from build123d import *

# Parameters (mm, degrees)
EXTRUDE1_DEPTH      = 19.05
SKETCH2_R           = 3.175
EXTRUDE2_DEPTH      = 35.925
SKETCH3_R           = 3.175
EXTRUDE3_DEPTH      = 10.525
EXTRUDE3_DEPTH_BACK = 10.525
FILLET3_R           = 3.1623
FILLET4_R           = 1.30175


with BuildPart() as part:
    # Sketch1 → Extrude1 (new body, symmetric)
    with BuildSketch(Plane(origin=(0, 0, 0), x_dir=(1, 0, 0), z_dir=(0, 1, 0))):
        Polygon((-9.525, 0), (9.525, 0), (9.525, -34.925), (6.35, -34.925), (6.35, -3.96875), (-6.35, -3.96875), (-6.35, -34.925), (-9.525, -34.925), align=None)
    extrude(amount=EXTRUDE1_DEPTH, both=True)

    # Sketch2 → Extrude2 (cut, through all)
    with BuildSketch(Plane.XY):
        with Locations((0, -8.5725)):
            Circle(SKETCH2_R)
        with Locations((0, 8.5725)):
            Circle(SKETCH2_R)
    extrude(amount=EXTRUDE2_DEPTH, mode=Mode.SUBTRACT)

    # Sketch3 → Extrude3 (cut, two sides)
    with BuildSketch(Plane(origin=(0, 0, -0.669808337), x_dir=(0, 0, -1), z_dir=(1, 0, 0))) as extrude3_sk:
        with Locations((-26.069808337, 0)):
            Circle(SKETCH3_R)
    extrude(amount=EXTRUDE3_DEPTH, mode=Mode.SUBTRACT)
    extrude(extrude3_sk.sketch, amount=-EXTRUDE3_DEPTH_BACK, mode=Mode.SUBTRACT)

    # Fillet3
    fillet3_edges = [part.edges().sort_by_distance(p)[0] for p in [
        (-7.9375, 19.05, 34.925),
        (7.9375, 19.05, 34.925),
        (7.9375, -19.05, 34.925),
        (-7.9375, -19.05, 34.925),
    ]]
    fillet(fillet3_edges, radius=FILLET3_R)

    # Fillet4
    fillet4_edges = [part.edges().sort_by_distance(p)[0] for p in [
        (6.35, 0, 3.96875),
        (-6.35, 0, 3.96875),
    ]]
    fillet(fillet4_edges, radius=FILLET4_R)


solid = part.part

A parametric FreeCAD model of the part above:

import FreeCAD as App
import Part
import Sketcher
Q = App.Units.Quantity


def edges_at(feature, points):
    """Names of the edges that pass closest to the given points."""
    edges = feature.Shape.Edges
    near = lambda p: min(range(len(edges)), key=lambda i: edges[i].distToShape(Part.Vertex(*p))[0])
    return sorted({f"Edge{near(p) + 1}" for p in points})


def add_polygon(sketch, points):
    """Adds a closed chain of lines whose ends are joined by coincident constraints."""
    first, n = sketch.GeometryCount, len(points)
    for a, b in zip(points, points[1:] + points[:1]):
        sketch.addGeometry(Part.LineSegment(App.Vector(*a, 0), App.Vector(*b, 0)), False)
    for i in range(n):
        sketch.addConstraint(Sketcher.Constraint("Coincident", first + i, 2, first + (i + 1) % n, 1))

doc = App.newDocument("Part")
body = doc.addObject("PartDesign::Body", "Body")

# Sketch on XZ plane
sketch1 = body.newObject("Sketcher::SketchObject", "Sketch")
sketch1.AttachmentSupport = (doc.getObject("XZ_Plane"), [""])
sketch1.MapMode = "FlatFace"
add_polygon(sketch1, [(9.5, 0), (-9.5, 0), (-9.5, 34.9), (-6.3, 34.9), (-6.3, 4), (6.3, 4), (6.3, 34.9), (9.5, 34.9)])  # lines 0-7
sketch1.addConstraint(Sketcher.Constraint("Horizontal", 0))
sketch1.addConstraint(Sketcher.Constraint("Vertical", 1))
sketch1.addConstraint(Sketcher.Constraint("Horizontal", 2))
sketch1.addConstraint(Sketcher.Constraint("Vertical", 3))
sketch1.addConstraint(Sketcher.Constraint("Horizontal", 4))
sketch1.addConstraint(Sketcher.Constraint("Vertical", 5))
sketch1.addConstraint(Sketcher.Constraint("Horizontal", 6))
sketch1.addConstraint(Sketcher.Constraint("Vertical", 7))
sketch1.addConstraint(Sketcher.Constraint("Symmetric", 0, 2, 7, 2, -1, 1))
sketch1.addConstraint(Sketcher.Constraint("Symmetric", 2, 2, 5, 2, -2))
sketch1.addConstraint(Sketcher.Constraint("DistanceX", 4, 1, 4, 2, Q("0.5 in")))
sketch1.addConstraint(Sketcher.Constraint("DistanceX", 0, 2, 0, 1, Q("0.75 in")))
sketch1.addConstraint(Sketcher.Constraint("DistanceY", 1, 1, 1, 2, Q("1.375 in")))
sketch1.addConstraint(Sketcher.Constraint("DistanceY", 3, 2, 3, 1, Q("1.21875 in")))
pad1 = body.newObject("PartDesign::Pad", "Pad")
pad1.Profile = sketch1
pad1.Length = Q("1.5 in")
pad1.Midplane = True

# Sketch on XY plane
sketch2 = body.newObject("Sketcher::SketchObject", "Sketch001")
sketch2.AttachmentSupport = (doc.getObject("XY_Plane"), [""])
sketch2.MapMode = "FlatFace"
sketch2.addGeometry(Part.Circle(App.Vector(0, -8.6, 0), App.Vector(0, 0, 1), 3.2), False)
sketch2.addGeometry(Part.Circle(App.Vector(0, 8.6, 0), App.Vector(0, 0, 1), 3.2), False)
sketch2.addConstraint(Sketcher.Constraint("Equal", 0, 1))
sketch2.addConstraint(Sketcher.Constraint("Symmetric", 0, 3, 1, 3, -1, 1))
sketch2.addConstraint(Sketcher.Constraint("PointOnObject", 0, 3, -2))
sketch2.addConstraint(Sketcher.Constraint("Diameter", 0, Q("0.25 in")))
sketch2.addConstraint(Sketcher.Constraint("DistanceY", 0, 3, 1, 3, Q("0.675 in")))
pocket1 = body.newObject("PartDesign::Pocket", "Pocket")
pocket1.Profile = sketch2
pocket1.Type = "ThroughAll"
pocket1.Reversed = True

# Sketch on YZ plane
sketch3 = body.newObject("Sketcher::SketchObject", "Sketch002")
sketch3.AttachmentSupport = (doc.getObject("YZ_Plane"), [""])
sketch3.MapMode = "FlatFace"
sketch3.addGeometry(Part.Circle(App.Vector(0, 25.4, 0), App.Vector(0, 0, 1), 3.2), False)
sketch3.addConstraint(Sketcher.Constraint("PointOnObject", 0, 3, -2))
sketch3.addConstraint(Sketcher.Constraint("Diameter", 0, Q("0.25 in")))
sketch3.addConstraint(Sketcher.Constraint("DistanceY", -1, 1, 0, 3, Q("1 in")))
pocket2 = body.newObject("PartDesign::Pocket", "Pocket001")
pocket2.Profile = sketch3
pocket2.Type = "ThroughAll"
pocket2.Midplane = True
doc.recompute()

fillet = body.newObject("PartDesign::Fillet", "Fillet")
fillet.Base = (pocket2, edges_at(pocket2, [
    (-7.938, 19.05, 34.925),
    (7.938, 19.05, 34.925),
    (7.938, -19.05, 34.925),
    (-7.938, -19.05, 34.925),
]))
fillet.Radius = Q("0.1245 in")
doc.recompute()

fillet2 = body.newObject("PartDesign::Fillet", "Fillet001")
fillet2.Base = (fillet, edges_at(fillet, [(6.35, 0, 3.969), (-6.35, 0, 3.969)]))
fillet2.Radius = 1.30175

doc.recompute()
